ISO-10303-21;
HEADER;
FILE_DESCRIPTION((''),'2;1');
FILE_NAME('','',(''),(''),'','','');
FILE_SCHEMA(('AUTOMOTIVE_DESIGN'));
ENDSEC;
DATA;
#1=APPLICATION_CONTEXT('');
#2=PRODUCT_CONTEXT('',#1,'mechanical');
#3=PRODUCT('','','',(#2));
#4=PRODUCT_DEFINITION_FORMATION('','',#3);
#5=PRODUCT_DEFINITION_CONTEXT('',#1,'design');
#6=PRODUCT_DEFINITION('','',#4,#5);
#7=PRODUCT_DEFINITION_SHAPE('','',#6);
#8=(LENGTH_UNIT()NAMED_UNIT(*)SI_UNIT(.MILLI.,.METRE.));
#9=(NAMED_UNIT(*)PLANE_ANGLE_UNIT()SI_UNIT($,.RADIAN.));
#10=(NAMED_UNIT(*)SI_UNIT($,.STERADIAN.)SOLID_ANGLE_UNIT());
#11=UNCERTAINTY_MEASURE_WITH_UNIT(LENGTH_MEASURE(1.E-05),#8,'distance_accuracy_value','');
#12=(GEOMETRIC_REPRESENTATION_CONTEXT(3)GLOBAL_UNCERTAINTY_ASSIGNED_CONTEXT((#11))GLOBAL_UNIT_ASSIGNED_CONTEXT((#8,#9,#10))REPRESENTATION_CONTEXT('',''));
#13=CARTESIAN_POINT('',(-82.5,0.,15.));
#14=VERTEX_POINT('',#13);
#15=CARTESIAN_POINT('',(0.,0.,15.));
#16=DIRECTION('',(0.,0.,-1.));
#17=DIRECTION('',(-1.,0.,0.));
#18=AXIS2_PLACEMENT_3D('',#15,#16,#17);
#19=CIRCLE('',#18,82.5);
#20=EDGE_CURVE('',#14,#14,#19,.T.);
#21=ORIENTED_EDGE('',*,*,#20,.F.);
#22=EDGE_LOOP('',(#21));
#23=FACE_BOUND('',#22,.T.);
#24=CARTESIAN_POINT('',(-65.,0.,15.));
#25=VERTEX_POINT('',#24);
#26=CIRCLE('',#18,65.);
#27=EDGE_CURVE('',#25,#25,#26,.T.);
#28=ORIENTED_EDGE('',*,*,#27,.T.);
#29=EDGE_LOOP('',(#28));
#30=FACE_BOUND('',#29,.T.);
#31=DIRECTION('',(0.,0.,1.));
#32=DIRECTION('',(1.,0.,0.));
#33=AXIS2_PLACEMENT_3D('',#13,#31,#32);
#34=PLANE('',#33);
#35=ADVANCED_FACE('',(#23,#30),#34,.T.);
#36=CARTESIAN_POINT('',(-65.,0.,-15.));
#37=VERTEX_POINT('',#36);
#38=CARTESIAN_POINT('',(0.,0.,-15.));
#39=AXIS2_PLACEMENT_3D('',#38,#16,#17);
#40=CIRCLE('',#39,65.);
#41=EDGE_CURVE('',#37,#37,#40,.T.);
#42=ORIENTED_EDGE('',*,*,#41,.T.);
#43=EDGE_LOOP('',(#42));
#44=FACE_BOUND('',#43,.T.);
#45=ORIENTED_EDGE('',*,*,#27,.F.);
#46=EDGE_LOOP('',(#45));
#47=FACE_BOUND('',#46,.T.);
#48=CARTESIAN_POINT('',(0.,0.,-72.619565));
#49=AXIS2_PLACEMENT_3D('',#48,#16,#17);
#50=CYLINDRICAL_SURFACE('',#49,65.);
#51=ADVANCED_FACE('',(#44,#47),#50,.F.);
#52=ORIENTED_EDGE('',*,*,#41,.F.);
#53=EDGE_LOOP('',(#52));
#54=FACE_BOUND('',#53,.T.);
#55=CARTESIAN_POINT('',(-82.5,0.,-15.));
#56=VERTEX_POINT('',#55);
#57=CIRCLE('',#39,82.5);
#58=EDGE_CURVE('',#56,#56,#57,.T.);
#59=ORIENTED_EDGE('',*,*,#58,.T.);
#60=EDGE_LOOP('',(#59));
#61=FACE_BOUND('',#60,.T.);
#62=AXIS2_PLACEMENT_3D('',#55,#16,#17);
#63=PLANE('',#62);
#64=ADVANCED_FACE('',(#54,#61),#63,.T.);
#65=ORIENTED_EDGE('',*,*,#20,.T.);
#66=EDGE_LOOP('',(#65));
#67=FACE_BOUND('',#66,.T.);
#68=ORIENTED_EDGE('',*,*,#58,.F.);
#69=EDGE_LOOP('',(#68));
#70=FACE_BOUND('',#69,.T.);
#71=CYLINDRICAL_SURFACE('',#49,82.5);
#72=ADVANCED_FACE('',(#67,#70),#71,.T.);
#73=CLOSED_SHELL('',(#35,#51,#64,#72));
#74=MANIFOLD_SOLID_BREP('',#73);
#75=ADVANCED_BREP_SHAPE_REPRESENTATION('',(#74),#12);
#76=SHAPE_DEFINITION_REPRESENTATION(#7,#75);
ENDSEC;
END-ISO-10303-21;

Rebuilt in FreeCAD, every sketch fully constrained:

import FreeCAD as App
import Part
import Sketcher
from FreeCAD import Vector

doc = App.newDocument("Part")
body = doc.addObject("PartDesign::Body", "Body")

# Sketch on XZ plane
sketch1 = doc.addObject("Sketcher::SketchObject", "Sketch")
body.addObject(sketch1)
sketch1.AttachmentSupport = (doc.XZ_Plane, [""])
sketch1.MapMode = "FlatFace"
sketch1.addGeometry([
    Part.LineSegment(Vector(-82, -15, 0), Vector(-82, 15, 0)),
    Part.LineSegment(Vector(-82, 15, 0), Vector(-65, 15, 0)),
    Part.LineSegment(Vector(-65, 15, 0), Vector(-65, -15, 0)),
    Part.LineSegment(Vector(-65, -15, 0), Vector(-82, -15, 0)),
], False)
sketch1.addConstraint([
    Sketcher.Constraint("Coincident", 0, 2, 1, 1),
    Sketcher.Constraint("Coincident", 1, 2, 2, 1),
    Sketcher.Constraint("Coincident", 2, 2, 3, 1),
    Sketcher.Constraint("Coincident", 3, 2, 0, 1),
    Sketcher.Constraint("Vertical", 0),
    Sketcher.Constraint("Horizontal", 1),
    Sketcher.Constraint("Vertical", 2),
    Sketcher.Constraint("Horizontal", 3),
    Sketcher.Constraint("DistanceY", 0, 1, 0, 2, 30.0),
    Sketcher.Constraint("DistanceX", 1, 1, 1, 2, 17.5),
    Sketcher.Constraint("DistanceY", -1, 1, 0, 2, 15.0),
    Sketcher.Constraint("DistanceX", 1, 2, -1, 1, 65.0),
])
revolution = doc.addObject("PartDesign::Revolution", "Revolution")
body.addObject(revolution)
revolution.Profile = sketch1
revolution.ReferenceAxis = (sketch1, ["V_Axis"])
revolution.Angle = 360

doc.recompute()
